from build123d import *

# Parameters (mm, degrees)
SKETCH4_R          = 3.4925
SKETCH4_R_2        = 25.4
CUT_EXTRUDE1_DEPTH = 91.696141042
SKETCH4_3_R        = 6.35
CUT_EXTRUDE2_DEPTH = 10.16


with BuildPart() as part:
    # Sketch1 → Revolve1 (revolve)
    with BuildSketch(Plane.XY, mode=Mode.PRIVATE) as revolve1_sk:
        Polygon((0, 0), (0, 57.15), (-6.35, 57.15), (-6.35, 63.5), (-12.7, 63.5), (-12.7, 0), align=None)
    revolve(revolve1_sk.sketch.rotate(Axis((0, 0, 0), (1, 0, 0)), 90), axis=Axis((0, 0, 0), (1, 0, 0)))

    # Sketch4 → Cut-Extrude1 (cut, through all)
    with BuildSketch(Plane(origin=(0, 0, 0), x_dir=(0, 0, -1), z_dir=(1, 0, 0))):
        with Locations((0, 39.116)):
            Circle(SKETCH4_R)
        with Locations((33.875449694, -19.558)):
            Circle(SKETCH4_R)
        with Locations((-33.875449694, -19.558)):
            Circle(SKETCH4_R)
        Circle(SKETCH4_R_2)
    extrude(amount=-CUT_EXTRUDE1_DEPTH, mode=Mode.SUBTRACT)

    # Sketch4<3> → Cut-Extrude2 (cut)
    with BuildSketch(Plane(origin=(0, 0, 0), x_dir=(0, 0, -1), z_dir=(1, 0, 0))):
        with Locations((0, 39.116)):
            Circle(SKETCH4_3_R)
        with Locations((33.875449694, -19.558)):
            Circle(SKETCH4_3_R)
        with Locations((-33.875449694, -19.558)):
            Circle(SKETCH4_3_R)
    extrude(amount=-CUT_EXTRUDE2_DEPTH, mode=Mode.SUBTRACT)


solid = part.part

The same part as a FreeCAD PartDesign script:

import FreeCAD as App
import Part
import Sketcher

V = App.Vector
Q = App.Units.Quantity


def add_polygon(sketch, points):
    """Adds a closed chain of lines whose ends are joined by coincident constraints."""
    first, n = sketch.GeometryCount, len(points)
    for a, b in zip(points, points[1:] + points[:1]):
        sketch.addGeometry(Part.LineSegment(App.Vector(*a, 0), App.Vector(*b, 0)), False)
    for i in range(n):
        sketch.addConstraint(Sketcher.Constraint("Coincident", first + i, 2, first + (i + 1) % n, 1))

doc = App.newDocument("Part")
body = doc.addObject("PartDesign::Body", "Body")

sketch1 = body.newObject("Sketcher::SketchObject", "Sketch")
sketch1.AttachmentSupport = (doc.getObject("XY_Plane"), [""])
sketch1.MapMode = "FlatFace"
add_polygon(sketch1, [(0, 0), (0, 57), (-6, 57), (-6, 64), (-13, 64), (-13, 0)])
sketch1.addConstraint([
    Sketcher.Constraint("Vertical", 0),
    Sketcher.Constraint("Horizontal", 1),
    Sketcher.Constraint("Vertical", 2),
    Sketcher.Constraint("Horizontal", 3),
    Sketcher.Constraint("Vertical", 4),
    Sketcher.Constraint("Horizontal", 5),
    Sketcher.Constraint("Coincident", 5, 2, -1, 1),
    Sketcher.Constraint("Equal", 1, 3),
    Sketcher.Constraint("Equal", 3, 2),
    Sketcher.Constraint("DistanceX", 5, 1, 5, 2, Q("0.5 in")),
    Sketcher.Constraint("DistanceY", 4, 2, 4, 1, Q("2.5 in")),
])
revolution = body.newObject("PartDesign::Revolution", "Revolution")
revolution.Profile = sketch1
revolution.ReferenceAxis = (sketch1, ["H_Axis"])
revolution.Angle = 360

sketch2 = body.newObject("Sketcher::SketchObject", "Sketch001")
sketch2.AttachmentSupport = (doc.getObject("YZ_Plane"), [""])
sketch2.MapMode = "FlatFace"
sketch2.addGeometry([
    Part.Circle(V(39.1, 0, 0), V(0, 0, 1), 3.5),
    Part.Circle(V(-19.6, -33.9, 0), V(0, 0, 1), 3.5),
    Part.Circle(V(-19.6, 33.9, 0), V(0, 0, 1), 3.5),
    Part.Circle(V(0, 0, 0), V(0, 0, 1), 25.4),
], False)
sketch2.addConstraint([
    Sketcher.Constraint("Coincident", 3, 3, -1, 1),
    Sketcher.Constraint("Equal", 0, 1),
    Sketcher.Constraint("Equal", 1, 2),
    Sketcher.Constraint("Symmetric", 1, 3, 2, 3, -1),
    Sketcher.Constraint("PointOnObject", 0, 3, -1),
    Sketcher.Constraint("Diameter", 3, Q("2 in")),
    Sketcher.Constraint("Diameter", 0, Q("0.275 in")),
    Sketcher.Constraint("DistanceX", -1, 1, 0, 3, Q("1.54 in")),
    Sketcher.Constraint("DistanceX", 1, 3, -1, 1, Q("0.77 in")),
    Sketcher.Constraint("DistanceY", 1, 3, 2, 3, 67.750899),
])
pocket1 = body.newObject("PartDesign::Pocket", "Pocket")
pocket1.Profile = sketch2
pocket1.Type = "ThroughAll"

sketch3 = body.newObject("Sketcher::SketchObject", "Sketch002")
sketch3.AttachmentSupport = (doc.getObject("YZ_Plane"), [""])
sketch3.MapMode = "FlatFace"
sketch3.addGeometry([
    Part.Circle(V(39, 0, 0), V(0, 0, 1), 6),
    Part.Circle(V(-20, -34, 0), V(0, 0, 1), 6),
    Part.Circle(V(-20, 34, 0), V(0, 0, 1), 6),
], False)
sketch3.addConstraint([
    Sketcher.Constraint("Equal", 0, 1),
    Sketcher.Constraint("Equal", 1, 2),
    Sketcher.Constraint("Symmetric", 1, 3, 2, 3, -1),
    Sketcher.Constraint("PointOnObject", 0, 3, -1),
    Sketcher.Constraint("Diameter", 0, Q("0.5 in")),
    Sketcher.Constraint("DistanceX", -1, 1, 0, 3, Q("1.54 in")),
    Sketcher.Constraint("DistanceX", 1, 3, -1, 1, Q("0.77 in")),
    Sketcher.Constraint("DistanceY", 1, 3, 2, 3, 67.750899),
])
pocket2 = body.newObject("PartDesign::Pocket", "Pocket001")
pocket2.Profile = sketch3
pocket2.Length = Q("0.4 in")

doc.recompute()
